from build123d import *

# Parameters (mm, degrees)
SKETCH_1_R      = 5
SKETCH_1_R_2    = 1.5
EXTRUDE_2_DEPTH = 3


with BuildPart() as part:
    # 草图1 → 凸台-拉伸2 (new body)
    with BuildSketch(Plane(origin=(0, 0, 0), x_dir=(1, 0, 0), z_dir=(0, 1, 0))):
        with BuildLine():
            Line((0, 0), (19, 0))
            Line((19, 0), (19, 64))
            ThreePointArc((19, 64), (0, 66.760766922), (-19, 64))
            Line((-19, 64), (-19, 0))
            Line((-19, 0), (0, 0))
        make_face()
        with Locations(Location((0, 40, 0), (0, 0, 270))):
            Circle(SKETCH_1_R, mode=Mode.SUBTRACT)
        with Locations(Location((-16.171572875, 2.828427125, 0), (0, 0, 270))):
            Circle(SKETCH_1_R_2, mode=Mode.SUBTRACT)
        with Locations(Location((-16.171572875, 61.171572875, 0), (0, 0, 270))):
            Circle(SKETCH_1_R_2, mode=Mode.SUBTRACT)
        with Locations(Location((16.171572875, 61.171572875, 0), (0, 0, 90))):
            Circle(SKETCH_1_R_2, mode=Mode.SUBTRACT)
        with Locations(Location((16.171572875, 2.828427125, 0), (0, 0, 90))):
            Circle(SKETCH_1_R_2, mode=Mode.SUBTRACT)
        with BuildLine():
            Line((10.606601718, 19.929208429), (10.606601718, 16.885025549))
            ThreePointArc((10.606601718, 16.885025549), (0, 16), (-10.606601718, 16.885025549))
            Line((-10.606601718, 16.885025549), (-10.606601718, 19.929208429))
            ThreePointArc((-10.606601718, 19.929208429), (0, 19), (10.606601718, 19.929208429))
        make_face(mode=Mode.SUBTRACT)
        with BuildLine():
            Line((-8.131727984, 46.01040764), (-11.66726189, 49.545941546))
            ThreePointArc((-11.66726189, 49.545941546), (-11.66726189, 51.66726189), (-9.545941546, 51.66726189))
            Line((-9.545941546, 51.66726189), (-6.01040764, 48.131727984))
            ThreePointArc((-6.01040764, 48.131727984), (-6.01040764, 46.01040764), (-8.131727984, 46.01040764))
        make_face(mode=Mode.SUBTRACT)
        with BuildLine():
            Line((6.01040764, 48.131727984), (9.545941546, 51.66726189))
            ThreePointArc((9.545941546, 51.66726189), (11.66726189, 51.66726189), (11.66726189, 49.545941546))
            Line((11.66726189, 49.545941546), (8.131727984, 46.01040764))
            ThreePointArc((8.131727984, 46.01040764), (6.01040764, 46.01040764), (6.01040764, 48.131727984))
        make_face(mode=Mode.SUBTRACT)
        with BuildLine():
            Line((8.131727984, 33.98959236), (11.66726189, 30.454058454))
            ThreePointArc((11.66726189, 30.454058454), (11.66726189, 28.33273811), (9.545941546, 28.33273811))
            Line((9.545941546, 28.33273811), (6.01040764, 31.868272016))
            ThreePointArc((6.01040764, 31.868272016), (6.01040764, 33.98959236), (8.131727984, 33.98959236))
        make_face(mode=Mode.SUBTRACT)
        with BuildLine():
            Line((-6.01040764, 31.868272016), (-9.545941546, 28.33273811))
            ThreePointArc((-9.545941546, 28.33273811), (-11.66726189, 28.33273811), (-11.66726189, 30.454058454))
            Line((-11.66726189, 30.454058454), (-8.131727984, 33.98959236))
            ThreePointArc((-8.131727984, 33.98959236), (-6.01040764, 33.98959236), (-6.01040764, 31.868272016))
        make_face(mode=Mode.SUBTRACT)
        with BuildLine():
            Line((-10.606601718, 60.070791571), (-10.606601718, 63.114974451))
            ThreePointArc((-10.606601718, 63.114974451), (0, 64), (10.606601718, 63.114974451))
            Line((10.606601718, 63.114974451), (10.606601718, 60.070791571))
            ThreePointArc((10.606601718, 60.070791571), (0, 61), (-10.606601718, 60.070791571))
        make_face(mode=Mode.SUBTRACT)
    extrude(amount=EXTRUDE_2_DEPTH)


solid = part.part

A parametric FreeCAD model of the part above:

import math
import FreeCAD as App
import Part
import Sketcher

V = App.Vector
Q = App.Units.Quantity

doc = App.newDocument("Part")
body = doc.addObject("PartDesign::Body", "Body")

# Sketch on XZ plane
sketch1 = body.newObject("Sketcher::SketchObject", "Sketch")
sketch1.AttachmentSupport = (doc.getObject("XZ_Plane"), [""])
sketch1.MapMode = "FlatFace"
sketch1.addGeometry([
    Part.LineSegment(V(19, 0, 0), V(19, -64, 0)),  # 0
    Part.ArcOfCircle(Part.Circle(V(0, 0, 0), V(0, 0, 1), 66.8), math.radians(-107), math.radians(-73)),  # 1
    Part.LineSegment(V(-19, -64, 0), V(-19, 0, 0)),  # 2
    Part.LineSegment(V(-19, 0, 0), V(19, 0, 0)),  # 3
    Part.Circle(V(-16.2, -2.8, 0), V(0, 0, 1), 1.5),  # 4
    Part.ArcOfCircle(Part.Circle(V(-7.1, -32.9, 0), V(0, 0, 1), 1.5), math.radians(-135), math.radians(45)),  # 5
    Part.LineSegment(V(-6, -31.9, 0), V(-9.5, -28.3, 0)),  # 6
    Part.ArcOfCircle(Part.Circle(V(-10.6, -29.4, 0), V(0, 0, 1), 1.5), math.radians(45), math.radians(225)),  # 7
    Part.LineSegment(V(-11.7, -30.5, 0), V(-8.1, -34, 0)),  # 8
    Part.ArcOfCircle(Part.Circle(V(0, -80, 0), V(0, 0, 1), 61), math.radians(80), math.radians(100)),  # 9
    Part.LineSegment(V(10.6, -19.9, 0), V(10.6, -16.9, 0)),  # 10
    Part.ArcOfCircle(Part.Circle(V(0, -80, 0), V(0, 0, 1), 64), math.radians(80.46), math.radians(99.54)),  # 11
    Part.LineSegment(V(-10.6, -16.9, 0), V(-10.6, -19.9, 0)),  # 12
    Part.Circle(V(16.2, -2.8, 0), V(0, 0, 1), 1.5),  # 13
    Part.ArcOfCircle(Part.Circle(V(7.1, -32.9, 0), V(0, 0, 1), 1.5), math.radians(135), math.radians(315)),  # 14
    Part.LineSegment(V(8.1, -34, 0), V(11.7, -30.5, 0)),  # 15
    Part.ArcOfCircle(Part.Circle(V(10.6, -29.4, 0), V(0, 0, 1), 1.5), math.radians(-45), math.radians(135)),  # 16
    Part.LineSegment(V(9.5, -28.3, 0), V(6, -31.9, 0)),  # 17
    Part.ArcOfCircle(Part.Circle(V(-7.1, -47.1, 0), V(0, 0, 1), 1.5), math.radians(-45), math.radians(135)),  # 18
    Part.LineSegment(V(-8.1, -46, 0), V(-11.7, -49.5, 0)),  # 19
    Part.ArcOfCircle(Part.Circle(V(-10.6, -50.6, 0), V(0, 0, 1), 1.5), math.radians(135), math.radians(315)),  # 20
    Part.LineSegment(V(-9.5, -51.7, 0), V(-6, -48.1, 0)),  # 21
    Part.Circle(V(-16.2, -61.2, 0), V(0, 0, 1), 1.5),  # 22
    Part.Circle(V(0, -40, 0), V(0, 0, 1), 5),  # 23
    Part.ArcOfCircle(Part.Circle(V(0, 0, 0), V(0, 0, 1), 61), math.radians(-100), math.radians(-80)),  # 24
    Part.LineSegment(V(-10.6, -60.1, 0), V(-10.6, -63.1, 0)),  # 25
    Part.ArcOfCircle(Part.Circle(V(0, 0, 0), V(0, 0, 1), 64), math.radians(-99.54), math.radians(-80.46)),  # 26
    Part.LineSegment(V(10.6, -63.1, 0), V(10.6, -60.1, 0)),  # 27
    Part.ArcOfCircle(Part.Circle(V(7.1, -47.1, 0), V(0, 0, 1), 1.5), math.radians(45), math.radians(225)),  # 28
    Part.LineSegment(V(6, -48.1, 0), V(9.5, -51.7, 0)),  # 29
    Part.ArcOfCircle(Part.Circle(V(10.6, -50.6, 0), V(0, 0, 1), 1.5), math.radians(-135), math.radians(45)),  # 30
    Part.LineSegment(V(11.7, -49.5, 0), V(8.1, -46, 0)),  # 31
    Part.Circle(V(16.2, -61.2, 0), V(0, 0, 1), 1.5),  # 32
], False)
sketch1.addConstraint([
    Sketcher.Constraint("Coincident", 0, 2, 1, 2),
    Sketcher.Constraint("Coincident", 1, 1, 2, 1),
    Sketcher.Constraint("Coincident", 2, 2, 3, 1),
    Sketcher.Constraint("Coincident", 3, 2, 0, 1),
    Sketcher.Constraint("Tangent", 5, 2, 6, 1),
    Sketcher.Constraint("Tangent", 6, 2, 7, 1),
    Sketcher.Constraint("Tangent", 7, 2, 8, 1),
    Sketcher.Constraint("Tangent", 8, 2, 5, 1),
    Sketcher.Constraint("Coincident", 9, 1, 10, 1),
    Sketcher.Constraint("Coincident", 10, 2, 11, 1),
    Sketcher.Constraint("Coincident", 11, 2, 12, 1),
    Sketcher.Constraint("Coincident", 12, 2, 9, 2),
    Sketcher.Constraint("Tangent", 14, 2, 15, 1),
    Sketcher.Constraint("Tangent", 15, 2, 16, 1),
    Sketcher.Constraint("Tangent", 16, 2, 17, 1),
    Sketcher.Constraint("Tangent", 17, 2, 14, 1),
    Sketcher.Constraint("Tangent", 18, 2, 19, 1),
    Sketcher.Constraint("Tangent", 19, 2, 20, 1),
    Sketcher.Constraint("Tangent", 20, 2, 21, 1),
    Sketcher.Constraint("Tangent", 21, 2, 18, 1),
    Sketcher.Constraint("Coincident", 24, 1, 25, 1),
    Sketcher.Constraint("Coincident", 25, 2, 26, 1),
    Sketcher.Constraint("Coincident", 26, 2, 27, 1),
    Sketcher.Constraint("Coincident", 27, 2, 24, 2),
    Sketcher.Constraint("Tangent", 28, 2, 29, 1),
    Sketcher.Constraint("Tangent", 29, 2, 30, 1),
    Sketcher.Constraint("Tangent", 30, 2, 31, 1),
    Sketcher.Constraint("Tangent", 31, 2, 28, 1),
    Sketcher.Constraint("Vertical", 0),
    Sketcher.Constraint("Vertical", 2),
    Sketcher.Constraint("Horizontal", 3),
    Sketcher.Constraint("Vertical", 10),
    Sketcher.Constraint("Vertical", 12),
    Sketcher.Constraint("Vertical", 25),
    Sketcher.Constraint("Vertical", 27),
    Sketcher.Constraint("Coincident", 1, 3, -1, 1),
    Sketcher.Constraint("Coincident", 24, 3, -1, 1),
    Sketcher.Constraint("Coincident", 26, 3, -1, 1),
    Sketcher.Constraint("Coincident", 11, 3, 9, 3),
    Sketcher.Constraint("Equal", 4, 5),
    Sketcher.Constraint("Equal", 5, 7),
    Sketcher.Constraint("Equal", 7, 13),
    Sketcher.Constraint("Equal", 13, 14),
    Sketcher.Constraint("Equal", 14, 16),
    Sketcher.Constraint("Equal", 16, 18),
    Sketcher.Constraint("Equal", 18, 20),
    Sketcher.Constraint("Equal", 20, 22),
    Sketcher.Constraint("Equal", 9, 24),
    Sketcher.Constraint("Equal", 11, 26),
    Sketcher.Constraint("Equal", 22, 28),
    Sketcher.Constraint("Equal", 28, 30),
    Sketcher.Constraint("Equal", 30, 32),
    Sketcher.Constraint("Symmetric", 2, 2, 3, 2, -1, 1),
    Sketcher.Constraint("Symmetric", 4, 3, 13, 3, -2),
    Sketcher.Constraint("Symmetric", 5, 3, 14, 3, -2),
    Sketcher.Constraint("Symmetric", 7, 3, 16, 3, -2),
    Sketcher.Constraint("Symmetric", 18, 3, 28, 3, -2),
    Sketcher.Constraint("Symmetric", 20, 3, 30, 3, -2),
    Sketcher.Constraint("Symmetric", 22, 3, 32, 3, -2),
    Sketcher.Constraint("Symmetric", 10, 2, 11, 2, -2),
    Sketcher.Constraint("PointOnObject", 23, 3, -2),
    Sketcher.Constraint("Perpendicular", 8, 15),
    Sketcher.Constraint("Parallel", 17, 19),
    Sketcher.Constraint("Horizontal", 25, 2, 26, 2),
    Sketcher.Constraint("Vertical", 5, 3, 18, 3),
    Sketcher.Constraint("Vertical", 7, 3, 20, 3),
    Sketcher.Constraint("Vertical", 4, 3, 22, 3),
    Sketcher.Constraint("Vertical", 30, 3, 9, 1),
    Sketcher.Constraint("Vertical", 12, 2, 24, 1),
    Sketcher.Constraint("Diameter", 4, Q("3 mm")),
    Sketcher.Constraint("Diameter", 23, Q("10 mm")),
    Sketcher.Constraint("Radius", 9, Q("61 mm")),
    Sketcher.Constraint("Radius", 11, Q("64 mm")),
    Sketcher.Constraint("DistanceX", 3, 1, 3, 2, Q("38 mm")),
    Sketcher.Constraint("DistanceY", 0, 2, 0, 1, Q("64 mm")),
    Sketcher.Constraint("Distance", 6, Q("5 mm")),
    Sketcher.Constraint("DistanceY", 9, 3, -1, 1, Q("80 mm")),
    Sketcher.Constraint("DistanceY", 23, 3, -1, 1, Q("40 mm")),
    Sketcher.Constraint("DistanceX", 7, 3, -1, 1, Q("10.606602 mm")),
    Sketcher.Constraint("DistanceY", 7, 3, -1, 1, Q("29.393398 mm")),
    Sketcher.Constraint("DistanceY", 20, 3, -1, 1, Q("50.606602 mm")),
    Sketcher.Constraint("DistanceY", 10, 2, 13, 3, Q("14.056598 mm")),
    Sketcher.Constraint("DistanceY", 25, 2, 22, 3, Q("1.943402 mm")),
    Sketcher.Constraint("DistanceX", 4, 3, 7, 3, Q("5.564971 mm")),
])
pad1 = body.newObject("PartDesign::Pad", "Pad")
pad1.Profile = sketch1
pad1.Length = 3
pad1.Reversed = True

doc.recompute()
